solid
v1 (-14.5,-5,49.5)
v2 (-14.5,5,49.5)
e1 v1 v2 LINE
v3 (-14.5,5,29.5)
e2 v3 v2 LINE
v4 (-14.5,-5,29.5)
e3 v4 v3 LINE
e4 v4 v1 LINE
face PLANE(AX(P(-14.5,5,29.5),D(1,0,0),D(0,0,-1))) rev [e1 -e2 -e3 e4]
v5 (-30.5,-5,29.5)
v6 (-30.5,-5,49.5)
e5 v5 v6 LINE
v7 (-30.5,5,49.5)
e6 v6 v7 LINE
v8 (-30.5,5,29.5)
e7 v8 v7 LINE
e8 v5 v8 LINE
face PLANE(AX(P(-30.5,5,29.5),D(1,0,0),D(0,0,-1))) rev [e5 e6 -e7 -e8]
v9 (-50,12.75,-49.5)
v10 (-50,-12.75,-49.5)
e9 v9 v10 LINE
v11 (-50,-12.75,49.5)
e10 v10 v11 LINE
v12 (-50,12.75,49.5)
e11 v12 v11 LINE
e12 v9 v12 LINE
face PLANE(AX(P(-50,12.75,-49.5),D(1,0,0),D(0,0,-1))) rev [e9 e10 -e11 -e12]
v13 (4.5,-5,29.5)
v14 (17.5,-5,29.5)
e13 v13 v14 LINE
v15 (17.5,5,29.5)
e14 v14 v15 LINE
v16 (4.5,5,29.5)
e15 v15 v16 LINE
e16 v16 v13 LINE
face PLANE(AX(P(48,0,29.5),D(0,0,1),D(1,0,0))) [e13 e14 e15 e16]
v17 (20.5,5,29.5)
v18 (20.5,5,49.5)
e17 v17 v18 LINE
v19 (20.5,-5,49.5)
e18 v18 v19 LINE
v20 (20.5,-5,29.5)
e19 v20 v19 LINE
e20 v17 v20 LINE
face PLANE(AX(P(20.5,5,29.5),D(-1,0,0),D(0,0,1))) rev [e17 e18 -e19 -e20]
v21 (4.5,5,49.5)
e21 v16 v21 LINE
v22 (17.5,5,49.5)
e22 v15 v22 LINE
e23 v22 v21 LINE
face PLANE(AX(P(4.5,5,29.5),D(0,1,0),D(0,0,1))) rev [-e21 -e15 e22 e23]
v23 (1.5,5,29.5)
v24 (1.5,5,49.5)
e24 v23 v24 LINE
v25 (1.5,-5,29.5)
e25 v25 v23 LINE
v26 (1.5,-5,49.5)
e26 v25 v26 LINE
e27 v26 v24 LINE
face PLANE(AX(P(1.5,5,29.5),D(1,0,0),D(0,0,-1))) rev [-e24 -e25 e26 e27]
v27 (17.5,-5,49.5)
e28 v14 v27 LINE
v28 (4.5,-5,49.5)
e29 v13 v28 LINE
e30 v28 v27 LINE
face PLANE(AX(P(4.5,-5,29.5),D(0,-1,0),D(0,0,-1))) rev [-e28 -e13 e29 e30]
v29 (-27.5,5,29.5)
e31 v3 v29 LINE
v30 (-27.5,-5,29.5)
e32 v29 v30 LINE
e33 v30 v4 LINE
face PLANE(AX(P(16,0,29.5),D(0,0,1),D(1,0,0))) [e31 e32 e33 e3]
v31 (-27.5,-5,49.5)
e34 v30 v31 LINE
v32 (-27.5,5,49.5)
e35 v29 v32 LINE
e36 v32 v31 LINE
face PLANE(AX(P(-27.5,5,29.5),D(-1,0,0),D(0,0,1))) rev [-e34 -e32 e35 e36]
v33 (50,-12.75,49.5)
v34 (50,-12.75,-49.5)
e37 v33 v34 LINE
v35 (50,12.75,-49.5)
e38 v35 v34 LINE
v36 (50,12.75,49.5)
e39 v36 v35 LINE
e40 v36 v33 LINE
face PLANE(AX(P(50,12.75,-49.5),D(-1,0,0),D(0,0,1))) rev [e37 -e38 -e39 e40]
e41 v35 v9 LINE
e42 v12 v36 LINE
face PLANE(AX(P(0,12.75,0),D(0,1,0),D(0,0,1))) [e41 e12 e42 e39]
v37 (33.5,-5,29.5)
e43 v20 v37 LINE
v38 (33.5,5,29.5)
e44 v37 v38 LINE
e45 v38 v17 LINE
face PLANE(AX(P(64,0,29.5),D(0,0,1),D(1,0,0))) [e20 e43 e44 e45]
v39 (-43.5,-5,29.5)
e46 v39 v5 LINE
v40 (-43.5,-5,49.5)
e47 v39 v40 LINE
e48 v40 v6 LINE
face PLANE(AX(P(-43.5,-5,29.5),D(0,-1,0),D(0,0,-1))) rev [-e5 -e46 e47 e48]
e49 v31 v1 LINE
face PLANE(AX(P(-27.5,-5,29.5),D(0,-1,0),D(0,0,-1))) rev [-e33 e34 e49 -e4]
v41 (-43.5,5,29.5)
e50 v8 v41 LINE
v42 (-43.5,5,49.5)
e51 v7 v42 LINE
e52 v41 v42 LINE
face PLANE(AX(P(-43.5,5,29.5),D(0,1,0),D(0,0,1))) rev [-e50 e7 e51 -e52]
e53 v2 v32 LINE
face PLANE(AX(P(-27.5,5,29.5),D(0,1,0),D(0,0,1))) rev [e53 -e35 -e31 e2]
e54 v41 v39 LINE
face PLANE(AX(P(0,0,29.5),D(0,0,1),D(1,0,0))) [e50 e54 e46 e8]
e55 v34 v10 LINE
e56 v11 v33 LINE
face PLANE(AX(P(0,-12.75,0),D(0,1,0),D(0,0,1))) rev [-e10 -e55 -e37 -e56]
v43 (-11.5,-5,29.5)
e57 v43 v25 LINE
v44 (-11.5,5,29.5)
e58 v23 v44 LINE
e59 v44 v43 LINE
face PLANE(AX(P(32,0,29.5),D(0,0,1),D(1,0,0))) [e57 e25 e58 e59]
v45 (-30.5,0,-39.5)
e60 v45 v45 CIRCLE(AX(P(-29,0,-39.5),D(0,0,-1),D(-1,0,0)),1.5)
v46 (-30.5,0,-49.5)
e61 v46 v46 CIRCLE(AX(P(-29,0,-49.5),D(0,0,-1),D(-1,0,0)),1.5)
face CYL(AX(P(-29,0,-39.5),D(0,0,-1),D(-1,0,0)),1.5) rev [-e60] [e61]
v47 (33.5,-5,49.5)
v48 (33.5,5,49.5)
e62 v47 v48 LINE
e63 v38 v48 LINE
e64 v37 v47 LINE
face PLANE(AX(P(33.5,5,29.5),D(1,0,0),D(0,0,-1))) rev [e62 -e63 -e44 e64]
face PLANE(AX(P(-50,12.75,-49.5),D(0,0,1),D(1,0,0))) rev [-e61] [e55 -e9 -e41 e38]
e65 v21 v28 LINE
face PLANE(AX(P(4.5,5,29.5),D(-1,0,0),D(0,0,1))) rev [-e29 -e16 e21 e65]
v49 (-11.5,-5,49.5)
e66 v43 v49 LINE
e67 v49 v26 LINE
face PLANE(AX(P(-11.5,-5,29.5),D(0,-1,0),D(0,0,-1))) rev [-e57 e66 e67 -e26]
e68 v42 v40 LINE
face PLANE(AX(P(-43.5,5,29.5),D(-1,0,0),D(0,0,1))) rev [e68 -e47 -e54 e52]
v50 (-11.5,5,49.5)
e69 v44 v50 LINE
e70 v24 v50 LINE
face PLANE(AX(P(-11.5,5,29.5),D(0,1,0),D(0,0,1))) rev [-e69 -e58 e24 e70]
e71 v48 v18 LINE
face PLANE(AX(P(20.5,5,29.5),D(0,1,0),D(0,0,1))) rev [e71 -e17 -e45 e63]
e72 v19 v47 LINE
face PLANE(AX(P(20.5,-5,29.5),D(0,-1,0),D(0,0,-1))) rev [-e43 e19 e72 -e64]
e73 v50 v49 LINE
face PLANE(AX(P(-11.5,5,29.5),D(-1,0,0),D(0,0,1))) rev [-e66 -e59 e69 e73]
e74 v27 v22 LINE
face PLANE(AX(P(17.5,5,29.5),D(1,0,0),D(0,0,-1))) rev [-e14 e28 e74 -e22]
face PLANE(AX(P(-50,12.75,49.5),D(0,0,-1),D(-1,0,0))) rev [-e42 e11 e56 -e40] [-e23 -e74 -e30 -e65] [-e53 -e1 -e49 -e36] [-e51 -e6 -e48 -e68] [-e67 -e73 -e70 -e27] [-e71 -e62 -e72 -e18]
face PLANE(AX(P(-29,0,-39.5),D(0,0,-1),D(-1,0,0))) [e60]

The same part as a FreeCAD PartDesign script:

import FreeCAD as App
import Part
import Sketcher
from FreeCAD import Vector

doc = App.newDocument("Part")
body = doc.addObject("PartDesign::Body", "Body")

sketch1 = body.newObject("Sketcher::SketchObject", "Sketch")
sketch1.AttachmentSupport = (doc.getObject("XZ_Plane"), [""])
sketch1.MapMode = "FlatFace"
sketch1.addGeometry([
    Part.LineSegment(Vector(-50, -49.5, 0), Vector(-50, 49.5, 0)),
    Part.LineSegment(Vector(-50, 49.5, 0), Vector(50, 49.5, 0)),
    Part.LineSegment(Vector(50, 49.5, 0), Vector(50, -49.5, 0)),
    Part.LineSegment(Vector(50, -49.5, 0), Vector(-50, -49.5, 0)),
], False)
sketch1.addConstraint([
    Sketcher.Constraint("Coincident", 0, 2, 1, 1),
    Sketcher.Constraint("Coincident", 1, 2, 2, 1),
    Sketcher.Constraint("Coincident", 2, 2, 3, 1),
    Sketcher.Constraint("Coincident", 3, 2, 0, 1),
    Sketcher.Constraint("Vertical", 0),
    Sketcher.Constraint("Horizontal", 1),
    Sketcher.Constraint("Vertical", 2),
    Sketcher.Constraint("Horizontal", 3),
    Sketcher.Constraint("Symmetric", 0, 2, 2, 2, -1, 1),
    Sketcher.Constraint("DistanceX", 1, 1, 1, 2, 100.0),
    Sketcher.Constraint("DistanceY", 0, 1, 0, 2, 99.0),
])
pad1 = body.newObject("PartDesign::Pad", "Pad")
pad1.Profile = sketch1
pad1.Length = 25.5
pad1.Midplane = True

sketch2 = body.newObject("Sketcher::SketchObject", "Sketch001")
sketch2.AttachmentSupport = (doc.getObject("XY_Plane"), [""])
sketch2.MapMode = "FlatFace"
sketch2.AttachmentOffset = App.Placement(Vector(0, 0, 49.5), App.Rotation())
sketch2.addGeometry([
    Part.LineSegment(Vector(-43.5, 5, 0), Vector(-43.5, -5, 0)),
    Part.LineSegment(Vector(-43.5, -5, 0), Vector(-30.5, -5, 0)),
    Part.LineSegment(Vector(-30.5, -5, 0), Vector(-30.5, 5, 0)),
    Part.LineSegment(Vector(-30.5, 5, 0), Vector(-43.5, 5, 0)),
], False)
sketch2.addConstraint([
    Sketcher.Constraint("Coincident", 0, 2, 1, 1),
    Sketcher.Constraint("Coincident", 1, 2, 2, 1),
    Sketcher.Constraint("Coincident", 2, 2, 3, 1),
    Sketcher.Constraint("Coincident", 3, 2, 0, 1),
    Sketcher.Constraint("Vertical", 0),
    Sketcher.Constraint("Horizontal", 1),
    Sketcher.Constraint("Vertical", 2),
    Sketcher.Constraint("Horizontal", 3),
    Sketcher.Constraint("DistanceX", 1, 1, 1, 2, 13.0),
    Sketcher.Constraint("DistanceY", 0, 2, 0, 1, 10.0),
    Sketcher.Constraint("DistanceY", 0, 2, -1, 1, 5.0),
    Sketcher.Constraint("DistanceX", 0, 2, -1, 1, 43.5),
])
pocket1 = body.newObject("PartDesign::Pocket", "Pocket")
pocket1.Profile = sketch2
pocket1.Length = 20
doc.recompute()

linearpattern = body.newObject("PartDesign::LinearPattern", "LinearPattern")
linearpattern.Originals = [pocket1]
linearpattern.Direction = (doc.getObject("X_Axis"), [""])
linearpattern.Mode = "offset"
linearpattern.Offset = 16
linearpattern.Occurrences = 5
body.Tip = linearpattern

sketch3 = body.newObject("Sketcher::SketchObject", "Sketch002")
sketch3.AttachmentSupport = (doc.getObject("XY_Plane"), [""])
sketch3.MapMode = "FlatFace"
sketch3.AttachmentOffset = App.Placement(Vector(0, 0, -49.5), App.Rotation())
sketch3.addGeometry(Part.Circle(Vector(-29, 0, 0), Vector(0, 0, 1), 1.5), False)
sketch3.addConstraint([
    Sketcher.Constraint("PointOnObject", 0, 3, -1),
    Sketcher.Constraint("Diameter", 0, 3.0),
    Sketcher.Constraint("DistanceX", 0, 3, -1, 1, 29.0),
])
pocket2 = body.newObject("PartDesign::Pocket", "Pocket001")
pocket2.Profile = sketch3
pocket2.Length = 10
pocket2.Reversed = True

doc.recompute()
